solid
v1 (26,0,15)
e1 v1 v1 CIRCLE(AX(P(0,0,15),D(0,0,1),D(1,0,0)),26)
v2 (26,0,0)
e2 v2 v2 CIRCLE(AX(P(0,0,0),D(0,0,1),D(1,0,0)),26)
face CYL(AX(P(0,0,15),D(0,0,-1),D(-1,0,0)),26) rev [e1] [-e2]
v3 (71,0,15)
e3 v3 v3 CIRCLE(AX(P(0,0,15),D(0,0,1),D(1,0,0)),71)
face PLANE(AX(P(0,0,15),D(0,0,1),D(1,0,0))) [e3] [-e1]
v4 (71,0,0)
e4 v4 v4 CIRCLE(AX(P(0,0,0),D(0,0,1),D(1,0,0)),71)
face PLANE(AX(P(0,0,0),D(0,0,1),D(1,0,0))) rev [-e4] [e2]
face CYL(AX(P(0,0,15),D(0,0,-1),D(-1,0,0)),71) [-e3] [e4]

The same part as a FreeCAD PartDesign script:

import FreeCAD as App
import Part
import Sketcher

V = App.Vector

doc = App.newDocument("Part")
body = doc.addObject("PartDesign::Body", "Body")

sketch1 = doc.addObject("Sketcher::SketchObject", "Sketch")
body.addObject(sketch1)
sketch1.AttachmentSupport = (doc.XY_Plane, [""])
sketch1.MapMode = "FlatFace"
sketch1.addGeometry([
    Part.Circle(V(0, 0, 0), V(0, 0, 1), 71),
    Part.Circle(V(0, 0, 0), V(0, 0, 1), 26),
], False)
sketch1.addConstraint([
    Sketcher.Constraint("Coincident", 0, 3, -1, 1),
    Sketcher.Constraint("Coincident", 1, 3, -1, 1),
    Sketcher.Constraint("Diameter", 0, 142.0),
    Sketcher.Constraint("Diameter", 1, 52.0),
])
pad1 = doc.addObject("PartDesign::Pad", "Pad")
body.addObject(pad1)
pad1.Profile = sketch1
pad1.Length = 15

doc.recompute()
